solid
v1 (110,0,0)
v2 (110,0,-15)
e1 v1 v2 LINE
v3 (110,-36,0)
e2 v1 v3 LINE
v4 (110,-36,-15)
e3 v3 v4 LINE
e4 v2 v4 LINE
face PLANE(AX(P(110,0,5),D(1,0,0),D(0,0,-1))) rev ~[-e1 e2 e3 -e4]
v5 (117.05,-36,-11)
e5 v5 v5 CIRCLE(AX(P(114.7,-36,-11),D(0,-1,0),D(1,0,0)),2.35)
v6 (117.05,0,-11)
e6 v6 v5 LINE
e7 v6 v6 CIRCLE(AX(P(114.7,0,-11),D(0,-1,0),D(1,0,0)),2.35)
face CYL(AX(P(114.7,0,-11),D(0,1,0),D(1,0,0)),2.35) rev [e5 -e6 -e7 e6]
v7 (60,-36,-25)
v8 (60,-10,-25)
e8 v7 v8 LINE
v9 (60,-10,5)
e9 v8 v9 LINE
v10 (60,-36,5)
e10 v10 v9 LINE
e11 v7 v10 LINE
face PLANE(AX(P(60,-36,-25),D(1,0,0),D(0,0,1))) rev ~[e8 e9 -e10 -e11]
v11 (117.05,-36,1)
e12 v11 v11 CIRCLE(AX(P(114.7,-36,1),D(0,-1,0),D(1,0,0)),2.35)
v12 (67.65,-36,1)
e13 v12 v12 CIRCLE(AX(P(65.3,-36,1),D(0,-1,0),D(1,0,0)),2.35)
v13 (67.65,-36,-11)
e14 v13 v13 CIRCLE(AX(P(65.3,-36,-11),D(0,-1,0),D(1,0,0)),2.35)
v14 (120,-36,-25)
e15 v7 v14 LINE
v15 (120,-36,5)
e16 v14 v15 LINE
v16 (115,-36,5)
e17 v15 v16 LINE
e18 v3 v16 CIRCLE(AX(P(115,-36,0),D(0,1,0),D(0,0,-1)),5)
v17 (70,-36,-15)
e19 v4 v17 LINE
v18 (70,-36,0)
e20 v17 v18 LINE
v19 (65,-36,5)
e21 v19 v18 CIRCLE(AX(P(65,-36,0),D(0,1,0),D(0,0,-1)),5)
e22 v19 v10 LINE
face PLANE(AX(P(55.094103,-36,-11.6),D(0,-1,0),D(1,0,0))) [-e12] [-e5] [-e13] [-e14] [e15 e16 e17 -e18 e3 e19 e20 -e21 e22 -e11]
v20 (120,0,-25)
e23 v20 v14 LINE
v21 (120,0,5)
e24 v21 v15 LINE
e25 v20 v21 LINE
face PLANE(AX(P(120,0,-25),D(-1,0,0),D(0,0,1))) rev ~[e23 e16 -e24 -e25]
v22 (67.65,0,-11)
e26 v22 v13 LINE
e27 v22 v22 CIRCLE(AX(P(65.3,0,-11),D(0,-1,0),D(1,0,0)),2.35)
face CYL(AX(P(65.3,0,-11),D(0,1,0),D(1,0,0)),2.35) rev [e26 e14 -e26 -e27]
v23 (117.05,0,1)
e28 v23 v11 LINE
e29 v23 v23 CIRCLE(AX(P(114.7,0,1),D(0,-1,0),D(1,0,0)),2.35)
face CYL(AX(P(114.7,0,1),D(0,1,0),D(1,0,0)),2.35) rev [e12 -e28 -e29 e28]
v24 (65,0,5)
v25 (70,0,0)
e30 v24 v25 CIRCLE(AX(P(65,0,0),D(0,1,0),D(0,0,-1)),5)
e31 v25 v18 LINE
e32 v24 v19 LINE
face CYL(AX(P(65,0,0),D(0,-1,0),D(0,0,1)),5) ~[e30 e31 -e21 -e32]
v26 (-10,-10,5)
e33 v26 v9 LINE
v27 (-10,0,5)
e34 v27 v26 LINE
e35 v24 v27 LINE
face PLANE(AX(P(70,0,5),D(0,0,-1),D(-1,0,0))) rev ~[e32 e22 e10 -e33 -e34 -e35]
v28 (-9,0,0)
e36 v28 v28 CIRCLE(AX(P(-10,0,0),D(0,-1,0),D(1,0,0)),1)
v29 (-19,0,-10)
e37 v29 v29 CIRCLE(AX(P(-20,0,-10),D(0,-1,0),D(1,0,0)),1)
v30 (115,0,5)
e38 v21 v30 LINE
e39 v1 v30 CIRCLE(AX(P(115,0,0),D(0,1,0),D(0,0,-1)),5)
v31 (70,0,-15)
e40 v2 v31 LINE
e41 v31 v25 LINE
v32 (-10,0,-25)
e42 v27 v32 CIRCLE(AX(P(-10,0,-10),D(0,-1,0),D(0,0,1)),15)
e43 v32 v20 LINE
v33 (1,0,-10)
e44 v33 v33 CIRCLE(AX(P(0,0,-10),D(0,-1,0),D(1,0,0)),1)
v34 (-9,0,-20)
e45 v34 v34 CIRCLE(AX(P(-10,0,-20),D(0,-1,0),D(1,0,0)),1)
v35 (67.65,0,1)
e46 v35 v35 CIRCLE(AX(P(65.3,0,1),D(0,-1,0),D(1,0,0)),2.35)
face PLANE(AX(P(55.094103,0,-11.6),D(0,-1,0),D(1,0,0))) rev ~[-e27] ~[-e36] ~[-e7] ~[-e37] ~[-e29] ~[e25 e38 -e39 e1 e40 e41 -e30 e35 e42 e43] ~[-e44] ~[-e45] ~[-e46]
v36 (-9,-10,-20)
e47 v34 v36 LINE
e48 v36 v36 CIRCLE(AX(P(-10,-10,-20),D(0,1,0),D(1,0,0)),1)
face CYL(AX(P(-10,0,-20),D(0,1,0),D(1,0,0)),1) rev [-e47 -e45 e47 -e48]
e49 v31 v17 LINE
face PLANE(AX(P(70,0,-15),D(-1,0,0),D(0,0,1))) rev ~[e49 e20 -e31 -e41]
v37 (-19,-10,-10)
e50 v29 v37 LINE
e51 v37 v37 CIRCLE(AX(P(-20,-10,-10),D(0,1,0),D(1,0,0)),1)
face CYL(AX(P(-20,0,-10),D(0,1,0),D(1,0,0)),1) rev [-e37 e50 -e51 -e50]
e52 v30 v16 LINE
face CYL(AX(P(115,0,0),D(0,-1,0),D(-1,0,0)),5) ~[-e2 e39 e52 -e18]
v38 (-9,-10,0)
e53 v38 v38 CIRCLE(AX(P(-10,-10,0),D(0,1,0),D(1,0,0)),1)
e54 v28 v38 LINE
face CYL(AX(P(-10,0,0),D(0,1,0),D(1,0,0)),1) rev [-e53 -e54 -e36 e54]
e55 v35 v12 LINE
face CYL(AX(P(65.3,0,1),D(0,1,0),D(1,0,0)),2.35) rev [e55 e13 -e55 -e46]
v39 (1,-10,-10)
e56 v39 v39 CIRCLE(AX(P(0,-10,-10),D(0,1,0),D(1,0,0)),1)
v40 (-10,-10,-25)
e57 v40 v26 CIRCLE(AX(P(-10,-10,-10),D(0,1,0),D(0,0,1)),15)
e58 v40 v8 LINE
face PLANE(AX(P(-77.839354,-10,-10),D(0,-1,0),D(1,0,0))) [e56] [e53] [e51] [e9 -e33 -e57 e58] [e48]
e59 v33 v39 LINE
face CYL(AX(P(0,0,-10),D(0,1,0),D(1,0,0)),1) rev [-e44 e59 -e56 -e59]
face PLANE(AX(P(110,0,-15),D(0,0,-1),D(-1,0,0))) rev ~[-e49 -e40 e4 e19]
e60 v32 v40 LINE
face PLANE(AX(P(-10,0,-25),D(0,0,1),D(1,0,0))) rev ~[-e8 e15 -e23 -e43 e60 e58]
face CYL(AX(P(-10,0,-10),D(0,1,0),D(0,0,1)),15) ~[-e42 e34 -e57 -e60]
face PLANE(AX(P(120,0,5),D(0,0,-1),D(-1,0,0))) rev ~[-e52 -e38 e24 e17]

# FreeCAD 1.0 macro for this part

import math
import FreeCAD as App
import Part
import Sketcher


def edges_at(feature, points):
    """Names of the edges that pass closest to the given points."""
    edges = feature.Shape.Edges
    near = lambda p: min(range(len(edges)), key=lambda i: edges[i].distToShape(Part.Vertex(*p))[0])
    return sorted({f"Edge{near(p) + 1}" for p in points})


def add_polygon(sketch, points):
    """Adds a closed chain of lines whose ends are joined by coincident constraints."""
    first, n = sketch.GeometryCount, len(points)
    for a, b in zip(points, points[1:] + points[:1]):
        sketch.addGeometry(Part.LineSegment(App.Vector(*a, 0), App.Vector(*b, 0)), False)
    for i in range(n):
        sketch.addConstraint(Sketcher.Constraint("Coincident", first + i, 2, first + (i + 1) % n, 1))

doc = App.newDocument("Part")
body = doc.addObject("PartDesign::Body", "Body")

sketch1 = body.newObject("Sketcher::SketchObject", "Sketch")
sketch1.AttachmentSupport = (doc.getObject("XZ_Plane"), [""])
sketch1.MapMode = "FlatFace"
sketch1.addGeometry([
    Part.LineSegment(App.Vector(70, 5, 0), App.Vector(-10, 5, 0)),
    Part.ArcOfCircle(Part.Circle(App.Vector(-10, -10, 0), App.Vector(0, 0, 1), 15), math.radians(90), math.radians(270)),
    Part.LineSegment(App.Vector(-10, -25, 0), App.Vector(120, -25, 0)),
    Part.LineSegment(App.Vector(120, -25, 0), App.Vector(120, 5, 0)),
    Part.LineSegment(App.Vector(120, 5, 0), App.Vector(110, 5, 0)),
    Part.LineSegment(App.Vector(110, 5, 0), App.Vector(110, -15, 0)),
    Part.LineSegment(App.Vector(110, -15, 0), App.Vector(70, -15, 0)),
    Part.LineSegment(App.Vector(70, -15, 0), App.Vector(70, 5, 0)),
    Part.Circle(App.Vector(-10, -20, 0), App.Vector(0, 0, 1), 1),
    Part.Circle(App.Vector(-20, -10, 0), App.Vector(0, 0, 1), 1),
    Part.Circle(App.Vector(0, -10, 0), App.Vector(0, 0, 1), 1),
    Part.Circle(App.Vector(65.3, -11, 0), App.Vector(0, 0, 1), 2.4),
    Part.Circle(App.Vector(114.7, -11, 0), App.Vector(0, 0, 1), 2.4),
    Part.Circle(App.Vector(-10, 0, 0), App.Vector(0, 0, 1), 1),
    Part.Circle(App.Vector(65.3, 1, 0), App.Vector(0, 0, 1), 2.4),
    Part.Circle(App.Vector(114.7, 1, 0), App.Vector(0, 0, 1), 2.4),
], False)
sketch1.addConstraint([
    Sketcher.Constraint("Tangent", 0, 2, 1, 1),
    Sketcher.Constraint("Tangent", 1, 2, 2, 1),
    Sketcher.Constraint("Coincident", 2, 2, 3, 1),
    Sketcher.Constraint("Coincident", 3, 2, 4, 1),
    Sketcher.Constraint("Coincident", 4, 2, 5, 1),
    Sketcher.Constraint("Coincident", 5, 2, 6, 1),
    Sketcher.Constraint("Coincident", 6, 2, 7, 1),
    Sketcher.Constraint("Coincident", 7, 2, 0, 1),
    Sketcher.Constraint("Horizontal", 0),
    Sketcher.Constraint("Horizontal", 2),
    Sketcher.Constraint("Vertical", 3),
    Sketcher.Constraint("Horizontal", 4),
    Sketcher.Constraint("Vertical", 5),
    Sketcher.Constraint("Horizontal", 6),
    Sketcher.Constraint("Vertical", 7),
    Sketcher.Constraint("Equal", 8, 9),
    Sketcher.Constraint("Equal", 9, 10),
    Sketcher.Constraint("Equal", 11, 12),
    Sketcher.Constraint("Equal", 10, 13),
    Sketcher.Constraint("Equal", 12, 14),
    Sketcher.Constraint("Equal", 14, 15),
    Sketcher.Constraint("PointOnObject", 10, 3, -2),
    Sketcher.Constraint("PointOnObject", 13, 3, -1),
    Sketcher.Constraint("Horizontal", 1, 3, 9, 3),
    Sketcher.Constraint("Horizontal", 9, 3, 10, 3),
    Sketcher.Constraint("Horizontal", 11, 3, 12, 3),
    Sketcher.Constraint("Horizontal", 14, 3, 15, 3),
    Sketcher.Constraint("Horizontal", 0, 2, 3, 2),
    Sketcher.Constraint("Vertical", 1, 3, 8, 3),
    Sketcher.Constraint("Vertical", 8, 3, 13, 3),
    Sketcher.Constraint("Vertical", 11, 3, 14, 3),
    Sketcher.Constraint("Vertical", 12, 3, 15, 3),
    Sketcher.Constraint("Diameter", 8, 2.0),
    Sketcher.Constraint("Radius", 1, 15.0),
    Sketcher.Constraint("Diameter", 11, 4.7),
    Sketcher.Constraint("DistanceX", 0, 2, 0, 1, 80.0),
    Sketcher.Constraint("DistanceX", 2, 1, 2, 2, 130.0),
    Sketcher.Constraint("DistanceX", 4, 2, 4, 1, 10.0),
    Sketcher.Constraint("DistanceY", 5, 2, 5, 1, 20.0),
    Sketcher.Constraint("DistanceX", 1, 3, -1, 1, 10.0),
    Sketcher.Constraint("DistanceY", 1, 3, -1, 1, 10.0),
    Sketcher.Constraint("DistanceY", 8, 3, -1, 1, 20.0),
    Sketcher.Constraint("DistanceX", 9, 3, -1, 1, 20.0),
    Sketcher.Constraint("DistanceY", 11, 3, -1, 1, 11.0),
    Sketcher.Constraint("DistanceY", -1, 1, 14, 3, 1.0),
    Sketcher.Constraint("DistanceX", -1, 1, 11, 3, 65.3),
    Sketcher.Constraint("DistanceX", -1, 1, 12, 3, 114.7),
])
pad1 = body.newObject("PartDesign::Pad", "Pad")
pad1.Profile = sketch1
pad1.Length = 36

sketch2 = body.newObject("Sketcher::SketchObject", "Sketch001")
sketch2.AttachmentSupport = (doc.getObject("XZ_Plane"), [""])
sketch2.MapMode = "FlatFace"
sketch2.AttachmentOffset = App.Placement(App.Vector(0, 0, 36), App.Rotation())
add_polygon(sketch2, [(-216, 5), (-216, -25), (60, -25), (60, 5)])
sketch2.addConstraint([
    Sketcher.Constraint("Vertical", 0),
    Sketcher.Constraint("Horizontal", 1),
    Sketcher.Constraint("Vertical", 2),
    Sketcher.Constraint("Horizontal", 3),
    Sketcher.Constraint("DistanceY", 0, 2, 0, 1, 30.0),
    Sketcher.Constraint("DistanceY", 0, 2, -1, 1, 25.0),
    Sketcher.Constraint("DistanceX", -1, 1, 1, 2, 60.0),
    Sketcher.Constraint("DistanceX", 1, 1, 1, 2, 275.678707),
])
pocket1 = body.newObject("PartDesign::Pocket", "Pocket")
pocket1.Profile = sketch2
pocket1.Length = 26
doc.recompute()

fillet = body.newObject("PartDesign::Fillet", "Fillet")
fillet.Base = (pocket1, edges_at(pocket1, [(110, -18, 5), (70, -18, 5)]))
fillet.Radius = 5

doc.recompute()
